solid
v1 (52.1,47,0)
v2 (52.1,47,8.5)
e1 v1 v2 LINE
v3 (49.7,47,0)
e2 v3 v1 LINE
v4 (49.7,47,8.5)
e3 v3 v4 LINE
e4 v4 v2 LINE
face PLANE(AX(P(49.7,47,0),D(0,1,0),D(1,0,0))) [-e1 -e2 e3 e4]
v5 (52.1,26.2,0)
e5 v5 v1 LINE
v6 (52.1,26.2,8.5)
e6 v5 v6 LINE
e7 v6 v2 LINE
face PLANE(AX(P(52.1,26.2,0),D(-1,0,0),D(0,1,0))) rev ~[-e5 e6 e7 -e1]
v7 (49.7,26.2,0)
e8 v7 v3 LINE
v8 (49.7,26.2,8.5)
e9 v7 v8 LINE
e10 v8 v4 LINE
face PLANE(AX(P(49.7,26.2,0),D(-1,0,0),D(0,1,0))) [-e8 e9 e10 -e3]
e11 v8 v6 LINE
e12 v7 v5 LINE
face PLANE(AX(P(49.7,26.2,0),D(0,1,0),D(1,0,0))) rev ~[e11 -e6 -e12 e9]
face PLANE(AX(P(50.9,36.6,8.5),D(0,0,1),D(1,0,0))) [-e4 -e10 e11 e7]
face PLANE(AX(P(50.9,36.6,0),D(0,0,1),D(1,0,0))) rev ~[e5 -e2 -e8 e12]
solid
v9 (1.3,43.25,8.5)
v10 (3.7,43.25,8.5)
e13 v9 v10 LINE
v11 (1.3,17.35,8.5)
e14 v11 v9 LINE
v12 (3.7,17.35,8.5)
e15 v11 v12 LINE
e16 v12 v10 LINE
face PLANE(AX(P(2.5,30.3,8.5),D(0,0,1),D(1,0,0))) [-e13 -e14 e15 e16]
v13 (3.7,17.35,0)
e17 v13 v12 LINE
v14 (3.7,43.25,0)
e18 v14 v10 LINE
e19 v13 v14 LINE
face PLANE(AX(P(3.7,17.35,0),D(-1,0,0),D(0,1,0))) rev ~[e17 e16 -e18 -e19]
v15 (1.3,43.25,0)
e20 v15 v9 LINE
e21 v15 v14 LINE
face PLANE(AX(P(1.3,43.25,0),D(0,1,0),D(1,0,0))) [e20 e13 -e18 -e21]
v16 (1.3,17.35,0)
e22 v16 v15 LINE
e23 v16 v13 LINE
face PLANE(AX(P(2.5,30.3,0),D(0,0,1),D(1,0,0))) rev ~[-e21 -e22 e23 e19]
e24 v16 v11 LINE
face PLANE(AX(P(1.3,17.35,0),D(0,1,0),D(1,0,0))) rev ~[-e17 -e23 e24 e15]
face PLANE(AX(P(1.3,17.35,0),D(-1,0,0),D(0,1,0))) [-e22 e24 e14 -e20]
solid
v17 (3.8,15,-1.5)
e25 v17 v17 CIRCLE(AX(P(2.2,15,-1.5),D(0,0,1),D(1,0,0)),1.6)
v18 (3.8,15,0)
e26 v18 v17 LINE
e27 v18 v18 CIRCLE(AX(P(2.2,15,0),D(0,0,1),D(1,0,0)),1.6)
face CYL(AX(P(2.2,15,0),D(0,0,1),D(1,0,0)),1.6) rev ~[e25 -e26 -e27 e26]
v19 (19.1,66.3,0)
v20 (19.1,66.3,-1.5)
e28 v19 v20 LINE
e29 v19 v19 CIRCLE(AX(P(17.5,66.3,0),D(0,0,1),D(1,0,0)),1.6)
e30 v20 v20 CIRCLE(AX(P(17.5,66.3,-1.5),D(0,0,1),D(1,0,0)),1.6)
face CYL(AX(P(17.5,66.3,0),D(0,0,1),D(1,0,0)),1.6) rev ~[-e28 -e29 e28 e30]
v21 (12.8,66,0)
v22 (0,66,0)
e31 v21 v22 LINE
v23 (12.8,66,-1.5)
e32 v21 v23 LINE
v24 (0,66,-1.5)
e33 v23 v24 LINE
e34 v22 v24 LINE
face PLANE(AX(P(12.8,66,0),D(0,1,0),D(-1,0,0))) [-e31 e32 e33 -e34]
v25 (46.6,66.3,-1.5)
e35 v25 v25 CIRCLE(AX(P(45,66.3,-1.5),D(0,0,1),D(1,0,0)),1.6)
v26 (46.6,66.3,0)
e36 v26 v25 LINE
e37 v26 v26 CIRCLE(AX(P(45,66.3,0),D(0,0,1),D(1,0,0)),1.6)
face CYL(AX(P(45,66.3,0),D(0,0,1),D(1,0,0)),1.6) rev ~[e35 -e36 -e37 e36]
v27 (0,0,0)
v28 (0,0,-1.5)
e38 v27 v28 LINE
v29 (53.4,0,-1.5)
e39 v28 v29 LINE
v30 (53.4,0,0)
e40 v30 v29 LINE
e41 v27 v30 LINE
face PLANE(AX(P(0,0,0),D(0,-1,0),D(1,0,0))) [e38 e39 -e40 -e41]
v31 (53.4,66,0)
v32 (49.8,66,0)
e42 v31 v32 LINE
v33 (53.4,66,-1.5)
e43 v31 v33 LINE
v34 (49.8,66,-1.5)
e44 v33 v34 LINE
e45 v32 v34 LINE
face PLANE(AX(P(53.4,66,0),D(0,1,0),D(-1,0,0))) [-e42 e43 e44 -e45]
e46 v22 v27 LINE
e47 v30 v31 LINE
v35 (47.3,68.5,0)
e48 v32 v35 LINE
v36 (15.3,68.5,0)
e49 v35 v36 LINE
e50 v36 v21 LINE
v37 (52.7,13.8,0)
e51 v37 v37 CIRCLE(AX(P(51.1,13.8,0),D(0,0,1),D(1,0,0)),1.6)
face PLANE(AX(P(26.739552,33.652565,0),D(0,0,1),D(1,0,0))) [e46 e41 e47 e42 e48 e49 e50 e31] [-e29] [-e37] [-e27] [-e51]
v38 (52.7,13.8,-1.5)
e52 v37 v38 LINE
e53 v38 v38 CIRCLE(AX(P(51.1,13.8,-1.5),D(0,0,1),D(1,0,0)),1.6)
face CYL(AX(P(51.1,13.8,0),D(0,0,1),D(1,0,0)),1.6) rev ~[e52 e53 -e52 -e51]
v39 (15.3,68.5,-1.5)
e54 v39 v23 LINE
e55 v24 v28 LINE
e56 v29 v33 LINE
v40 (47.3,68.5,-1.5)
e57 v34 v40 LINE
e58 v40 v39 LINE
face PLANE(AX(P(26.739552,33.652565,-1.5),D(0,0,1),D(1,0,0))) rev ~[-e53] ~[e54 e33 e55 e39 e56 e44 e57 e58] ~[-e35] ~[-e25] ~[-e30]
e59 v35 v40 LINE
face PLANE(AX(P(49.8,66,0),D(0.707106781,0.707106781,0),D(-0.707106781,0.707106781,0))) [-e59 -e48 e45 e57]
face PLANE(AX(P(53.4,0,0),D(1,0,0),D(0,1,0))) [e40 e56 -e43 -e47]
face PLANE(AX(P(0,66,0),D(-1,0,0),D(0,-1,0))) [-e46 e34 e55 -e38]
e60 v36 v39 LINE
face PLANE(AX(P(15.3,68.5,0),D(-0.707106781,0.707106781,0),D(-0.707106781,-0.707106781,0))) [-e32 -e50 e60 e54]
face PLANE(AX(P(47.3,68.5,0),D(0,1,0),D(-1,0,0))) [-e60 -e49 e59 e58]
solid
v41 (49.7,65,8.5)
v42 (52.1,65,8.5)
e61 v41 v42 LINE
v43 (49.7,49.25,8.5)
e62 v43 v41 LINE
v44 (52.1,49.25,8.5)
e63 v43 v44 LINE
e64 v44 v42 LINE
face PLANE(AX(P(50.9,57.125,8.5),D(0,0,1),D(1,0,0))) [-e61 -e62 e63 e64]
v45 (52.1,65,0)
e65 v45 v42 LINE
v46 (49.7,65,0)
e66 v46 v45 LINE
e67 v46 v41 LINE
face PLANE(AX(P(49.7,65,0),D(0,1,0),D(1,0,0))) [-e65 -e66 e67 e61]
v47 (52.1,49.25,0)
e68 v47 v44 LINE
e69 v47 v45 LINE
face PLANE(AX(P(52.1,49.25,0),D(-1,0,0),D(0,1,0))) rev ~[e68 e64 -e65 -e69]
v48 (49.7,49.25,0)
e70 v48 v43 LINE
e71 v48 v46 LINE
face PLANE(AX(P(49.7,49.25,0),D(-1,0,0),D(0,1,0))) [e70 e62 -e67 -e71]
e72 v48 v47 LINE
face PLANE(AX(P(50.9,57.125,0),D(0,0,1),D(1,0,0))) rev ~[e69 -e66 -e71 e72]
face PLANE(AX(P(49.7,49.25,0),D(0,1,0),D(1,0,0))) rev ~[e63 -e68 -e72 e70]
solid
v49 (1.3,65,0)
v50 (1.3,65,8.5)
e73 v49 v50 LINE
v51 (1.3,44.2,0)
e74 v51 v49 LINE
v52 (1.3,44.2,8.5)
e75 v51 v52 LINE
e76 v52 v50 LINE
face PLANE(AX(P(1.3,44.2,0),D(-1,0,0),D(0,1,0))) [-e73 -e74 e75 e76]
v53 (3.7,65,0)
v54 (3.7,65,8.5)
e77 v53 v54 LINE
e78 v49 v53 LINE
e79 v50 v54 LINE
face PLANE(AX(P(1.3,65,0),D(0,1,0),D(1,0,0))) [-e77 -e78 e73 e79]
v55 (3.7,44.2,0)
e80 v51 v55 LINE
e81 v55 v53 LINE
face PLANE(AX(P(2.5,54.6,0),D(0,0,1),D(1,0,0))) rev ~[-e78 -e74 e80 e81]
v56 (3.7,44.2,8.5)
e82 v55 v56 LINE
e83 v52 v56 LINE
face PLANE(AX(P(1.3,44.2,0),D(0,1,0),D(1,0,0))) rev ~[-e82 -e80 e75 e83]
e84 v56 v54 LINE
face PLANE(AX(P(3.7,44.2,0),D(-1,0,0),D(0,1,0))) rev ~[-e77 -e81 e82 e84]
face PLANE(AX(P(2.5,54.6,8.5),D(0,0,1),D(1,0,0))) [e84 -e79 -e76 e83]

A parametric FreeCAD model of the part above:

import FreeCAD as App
import Part
import Sketcher
from FreeCAD import Vector


def add_polygon(sketch, points):
    """Adds a closed chain of lines whose ends are joined by coincident constraints."""
    first, n = sketch.GeometryCount, len(points)
    for a, b in zip(points, points[1:] + points[:1]):
        sketch.addGeometry(Part.LineSegment(App.Vector(*a, 0), App.Vector(*b, 0)), False)
    for i in range(n):
        sketch.addConstraint(Sketcher.Constraint("Coincident", first + i, 2, first + (i + 1) % n, 1))

doc = App.newDocument("Part")
body = doc.addObject("PartDesign::Body", "Body")

# Sketch on XY plane
sketch1 = body.newObject("Sketcher::SketchObject", "Sketch")
sketch1.AttachmentSupport = (doc.getObject("XY_Plane"), [""])
sketch1.MapMode = "FlatFace"
add_polygon(sketch1, [(0, 0), (53.4, 0), (53.4, 66), (49.8, 66), (47.3, 68.5), (15.3, 68.5), (12.8, 66), (0, 66)])  # lines 0-7
sketch1.addConstraint(Sketcher.Constraint("Horizontal", 0))
sketch1.addConstraint(Sketcher.Constraint("Vertical", 1))
sketch1.addConstraint(Sketcher.Constraint("Horizontal", 2))
sketch1.addConstraint(Sketcher.Constraint("Horizontal", 4))
sketch1.addConstraint(Sketcher.Constraint("Horizontal", 6))
sketch1.addConstraint(Sketcher.Constraint("Vertical", 7))
sketch1.addConstraint(Sketcher.Constraint("Coincident", 7, 2, -1, 1))
sketch1.addConstraint(Sketcher.Constraint("Perpendicular", 3, 5))
sketch1.addConstraint(Sketcher.Constraint("Horizontal", 2, 2, 5, 2))
sketch1.addConstraint(Sketcher.Constraint("Equal", 3, 5))
sketch1.addConstraint(Sketcher.Constraint("DistanceX", 4, 2, 4, 1, 32.0))
sketch1.addConstraint(Sketcher.Constraint("DistanceY", 1, 1, 1, 2, 66.0))
sketch1.addConstraint(Sketcher.Constraint("DistanceX", 0, 1, 0, 2, 53.4))
sketch1.addConstraint(Sketcher.Constraint("DistanceX", 2, 2, 2, 1, 3.6))
sketch1.addConstraint(Sketcher.Constraint("DistanceX", 6, 2, 6, 1, 12.8))
pad1 = body.newObject("PartDesign::Pad", "Pad")
pad1.Profile = sketch1
pad1.Length = 1.5
pad1.Reversed = True

# Sketch on XY plane
sketch2 = body.newObject("Sketcher::SketchObject", "Sketch001")
sketch2.AttachmentSupport = (doc.getObject("XY_Plane"), [""])
sketch2.MapMode = "FlatFace"
sketch2.addGeometry(Part.Circle(Vector(2.2, 15, 0), Vector(0, 0, 1), 1.6), False)
sketch2.addGeometry(Part.Circle(Vector(51.1, 13.8, 0), Vector(0, 0, 1), 1.6), False)
sketch2.addGeometry(Part.Circle(Vector(17.5, 66.3, 0), Vector(0, 0, 1), 1.6), False)
sketch2.addGeometry(Part.Circle(Vector(45, 66.3, 0), Vector(0, 0, 1), 1.6), False)
sketch2.addConstraint(Sketcher.Constraint("Equal", 0, 1))
sketch2.addConstraint(Sketcher.Constraint("Equal", 1, 2))
sketch2.addConstraint(Sketcher.Constraint("Equal", 2, 3))
sketch2.addConstraint(Sketcher.Constraint("Horizontal", 2, 3, 3, 3))
sketch2.addConstraint(Sketcher.Constraint("Diameter", 0, 3.2))
sketch2.addConstraint(Sketcher.Constraint("DistanceY", -1, 1, 0, 3, 15.0))
sketch2.addConstraint(Sketcher.Constraint("DistanceX", -1, 1, 3, 3, 45.0))
sketch2.addConstraint(Sketcher.Constraint("DistanceX", -1, 1, 0, 3, 2.2))
sketch2.addConstraint(Sketcher.Constraint("DistanceX", -1, 1, 1, 3, 51.1))
sketch2.addConstraint(Sketcher.Constraint("DistanceY", -1, 1, 1, 3, 13.8))
sketch2.addConstraint(Sketcher.Constraint("DistanceX", -1, 1, 2, 3, 17.5))
sketch2.addConstraint(Sketcher.Constraint("DistanceY", -1, 1, 2, 3, 66.3))
pocket1 = body.newObject("PartDesign::Pocket", "Pocket")
pocket1.Profile = sketch2
pocket1.Type = "ThroughAll"
body2 = doc.addObject("PartDesign::Body", "Body001")

# Sketch on XY plane
sketch3 = body2.newObject("Sketcher::SketchObject", "Sketch002")
sketch3.AttachmentSupport = (doc.getObject("XY_Plane001"), [""])
sketch3.MapMode = "FlatFace"
add_polygon(sketch3, [(1.3, 43.2), (1.3, 17.4), (3.7, 17.4), (3.7, 43.2)])  # lines 0-3
sketch3.addConstraint(Sketcher.Constraint("Vertical", 0))
sketch3.addConstraint(Sketcher.Constraint("Horizontal", 1))
sketch3.addConstraint(Sketcher.Constraint("Vertical", 2))
sketch3.addConstraint(Sketcher.Constraint("Horizontal", 3))
sketch3.addConstraint(Sketcher.Constraint("DistanceX", 1, 1, 1, 2, 2.4))
sketch3.addConstraint(Sketcher.Constraint("DistanceY", 0, 2, 0, 1, 25.9))
sketch3.addConstraint(Sketcher.Constraint("DistanceX", -1, 1, 0, 2, 1.3))
sketch3.addConstraint(Sketcher.Constraint("DistanceY", -1, 1, 0, 2, 17.35))
pad2 = body2.newObject("PartDesign::Pad", "Pad001")
pad2.Profile = sketch3
pad2.Length = 8.5
body3 = doc.addObject("PartDesign::Body", "Body002")

# Sketch on XY plane
sketch4 = body3.newObject("Sketcher::SketchObject", "Sketch003")
sketch4.AttachmentSupport = (doc.getObject("XY_Plane002"), [""])
sketch4.MapMode = "FlatFace"
add_polygon(sketch4, [(1.3, 65), (1.3, 44.2), (3.7, 44.2), (3.7, 65)])  # lines 0-3
sketch4.addConstraint(Sketcher.Constraint("Vertical", 0))
sketch4.addConstraint(Sketcher.Constraint("Horizontal", 1))
sketch4.addConstraint(Sketcher.Constraint("Vertical", 2))
sketch4.addConstraint(Sketcher.Constraint("Horizontal", 3))
sketch4.addConstraint(Sketcher.Constraint("DistanceX", 1, 1, 1, 2, 2.4))
sketch4.addConstraint(Sketcher.Constraint("DistanceY", 0, 2, 0, 1, 20.8))
sketch4.addConstraint(Sketcher.Constraint("DistanceY", -1, 1, 2, 2, 65.0))
sketch4.addConstraint(Sketcher.Constraint("DistanceX", -1, 1, 0, 2, 1.3))
pad3 = body3.newObject("PartDesign::Pad", "Pad002")
pad3.Profile = sketch4
pad3.Length = 8.5
body4 = doc.addObject("PartDesign::Body", "Body003")

# Sketch on XY plane
sketch5 = body4.newObject("Sketcher::SketchObject", "Sketch004")
sketch5.AttachmentSupport = (doc.getObject("XY_Plane003"), [""])
sketch5.MapMode = "FlatFace"
add_polygon(sketch5, [(49.7, 47), (49.7, 26.2), (52.1, 26.2), (52.1, 47)])  # lines 0-3
sketch5.addConstraint(Sketcher.Constraint("Vertical", 0))
sketch5.addConstraint(Sketcher.Constraint("Horizontal", 1))
sketch5.addConstraint(Sketcher.Constraint("Vertical", 2))
sketch5.addConstraint(Sketcher.Constraint("Horizontal", 3))
sketch5.addConstraint(Sketcher.Constraint("DistanceX", 1, 1, 1, 2, 2.4))
sketch5.addConstraint(Sketcher.Constraint("DistanceY", 0, 2, 0, 1, 20.8))
sketch5.addConstraint(Sketcher.Constraint("DistanceY", -1, 1, 2, 2, 47.0))
sketch5.addConstraint(Sketcher.Constraint("DistanceX", -1, 1, 0, 2, 49.7))
pad4 = body4.newObject("PartDesign::Pad", "Pad003")
pad4.Profile = sketch5
pad4.Length = 8.5
body5 = doc.addObject("PartDesign::Body", "Body004")

# Sketch on XY plane
sketch6 = body5.newObject("Sketcher::SketchObject", "Sketch005")
sketch6.AttachmentSupport = (doc.getObject("XY_Plane004"), [""])
sketch6.MapMode = "FlatFace"
add_polygon(sketch6, [(49.7, 65), (49.7, 49.2), (52.1, 49.2), (52.1, 65)])  # lines 0-3
sketch6.addConstraint(Sketcher.Constraint("Vertical", 0))
sketch6.addConstraint(Sketcher.Constraint("Horizontal", 1))
sketch6.addConstraint(Sketcher.Constraint("Vertical", 2))
sketch6.addConstraint(Sketcher.Constraint("Horizontal", 3))
sketch6.addConstraint(Sketcher.Constraint("DistanceX", 1, 1, 1, 2, 2.4))
sketch6.addConstraint(Sketcher.Constraint("DistanceY", -1, 1, 2, 2, 65.0))
sketch6.addConstraint(Sketcher.Constraint("DistanceY", 0, 2, 0, 1, 15.75))
sketch6.addConstraint(Sketcher.Constraint("DistanceX", -1, 1, 0, 2, 49.7))
pad5 = body5.newObject("PartDesign::Pad", "Pad004")
pad5.Profile = sketch6
pad5.Length = 8.5

doc.recompute()
